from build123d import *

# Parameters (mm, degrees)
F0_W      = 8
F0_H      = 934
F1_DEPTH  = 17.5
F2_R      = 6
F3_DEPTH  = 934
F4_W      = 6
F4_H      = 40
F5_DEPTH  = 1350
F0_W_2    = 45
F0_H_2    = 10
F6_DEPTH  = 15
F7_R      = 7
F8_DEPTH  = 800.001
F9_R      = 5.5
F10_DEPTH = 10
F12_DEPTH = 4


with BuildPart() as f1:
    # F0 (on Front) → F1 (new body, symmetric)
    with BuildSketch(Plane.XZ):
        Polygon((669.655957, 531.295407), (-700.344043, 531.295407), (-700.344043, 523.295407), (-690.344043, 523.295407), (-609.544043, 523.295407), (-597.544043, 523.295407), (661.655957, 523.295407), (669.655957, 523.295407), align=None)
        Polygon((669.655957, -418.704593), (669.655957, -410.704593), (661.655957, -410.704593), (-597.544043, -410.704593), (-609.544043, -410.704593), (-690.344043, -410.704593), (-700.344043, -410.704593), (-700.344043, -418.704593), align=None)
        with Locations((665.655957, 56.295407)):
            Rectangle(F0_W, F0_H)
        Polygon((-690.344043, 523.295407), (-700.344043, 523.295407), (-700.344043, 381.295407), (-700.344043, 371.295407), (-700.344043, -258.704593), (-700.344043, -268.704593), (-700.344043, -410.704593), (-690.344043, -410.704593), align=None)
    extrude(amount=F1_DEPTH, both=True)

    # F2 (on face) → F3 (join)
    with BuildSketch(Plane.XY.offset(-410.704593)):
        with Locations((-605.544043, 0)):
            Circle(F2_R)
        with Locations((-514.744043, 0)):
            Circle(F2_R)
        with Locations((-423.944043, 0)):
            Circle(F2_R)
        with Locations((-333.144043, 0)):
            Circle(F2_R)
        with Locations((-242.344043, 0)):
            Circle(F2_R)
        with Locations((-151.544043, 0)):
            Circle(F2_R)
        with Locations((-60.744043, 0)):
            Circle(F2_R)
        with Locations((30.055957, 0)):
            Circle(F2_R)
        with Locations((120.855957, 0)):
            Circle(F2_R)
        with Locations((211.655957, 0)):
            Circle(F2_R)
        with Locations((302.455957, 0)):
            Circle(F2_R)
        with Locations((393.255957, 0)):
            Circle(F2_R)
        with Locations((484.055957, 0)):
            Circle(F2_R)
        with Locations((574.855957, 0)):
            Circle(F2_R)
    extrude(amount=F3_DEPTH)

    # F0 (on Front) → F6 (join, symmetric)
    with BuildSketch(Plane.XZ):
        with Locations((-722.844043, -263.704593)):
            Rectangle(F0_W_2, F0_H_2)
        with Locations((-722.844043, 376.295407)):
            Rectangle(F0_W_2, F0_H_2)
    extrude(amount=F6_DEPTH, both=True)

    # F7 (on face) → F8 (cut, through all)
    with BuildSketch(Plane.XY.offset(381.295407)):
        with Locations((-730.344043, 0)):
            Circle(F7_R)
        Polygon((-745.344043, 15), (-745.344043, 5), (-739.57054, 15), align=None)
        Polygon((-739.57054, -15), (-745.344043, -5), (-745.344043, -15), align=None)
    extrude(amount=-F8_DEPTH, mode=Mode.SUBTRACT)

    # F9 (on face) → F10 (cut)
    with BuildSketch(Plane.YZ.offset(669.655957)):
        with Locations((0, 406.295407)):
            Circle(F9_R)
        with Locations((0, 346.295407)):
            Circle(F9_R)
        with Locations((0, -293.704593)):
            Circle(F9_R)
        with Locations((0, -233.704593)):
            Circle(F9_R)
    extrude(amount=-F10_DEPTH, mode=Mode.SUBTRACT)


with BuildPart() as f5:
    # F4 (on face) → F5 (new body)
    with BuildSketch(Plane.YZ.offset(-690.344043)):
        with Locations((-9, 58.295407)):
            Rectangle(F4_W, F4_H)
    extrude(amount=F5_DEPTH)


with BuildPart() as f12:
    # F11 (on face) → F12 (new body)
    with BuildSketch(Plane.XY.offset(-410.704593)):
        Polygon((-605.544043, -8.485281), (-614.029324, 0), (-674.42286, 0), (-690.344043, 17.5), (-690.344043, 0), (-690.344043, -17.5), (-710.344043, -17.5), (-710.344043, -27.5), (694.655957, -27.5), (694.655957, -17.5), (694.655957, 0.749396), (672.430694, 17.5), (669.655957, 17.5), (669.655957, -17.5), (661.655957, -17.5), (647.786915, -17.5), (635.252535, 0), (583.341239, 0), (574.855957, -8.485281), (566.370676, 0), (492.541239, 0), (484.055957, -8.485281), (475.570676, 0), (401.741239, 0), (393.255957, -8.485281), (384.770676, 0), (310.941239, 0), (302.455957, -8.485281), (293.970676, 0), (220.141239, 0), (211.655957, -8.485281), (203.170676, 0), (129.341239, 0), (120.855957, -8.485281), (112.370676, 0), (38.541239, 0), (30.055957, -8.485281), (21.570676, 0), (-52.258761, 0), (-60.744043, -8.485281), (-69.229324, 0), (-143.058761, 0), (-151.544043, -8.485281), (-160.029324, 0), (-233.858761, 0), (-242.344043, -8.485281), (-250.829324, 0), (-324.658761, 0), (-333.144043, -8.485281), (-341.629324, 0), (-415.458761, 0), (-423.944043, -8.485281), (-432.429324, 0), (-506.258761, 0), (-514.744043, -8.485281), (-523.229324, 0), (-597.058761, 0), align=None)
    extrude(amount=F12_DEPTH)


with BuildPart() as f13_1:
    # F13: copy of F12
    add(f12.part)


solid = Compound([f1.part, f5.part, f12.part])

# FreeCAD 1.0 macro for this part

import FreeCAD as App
import Part
import Sketcher
from FreeCAD import Vector
Q = App.Units.Quantity


def add_polygon(sketch, points):
    """Adds a closed chain of lines whose ends are joined by coincident constraints."""
    first, n = sketch.GeometryCount, len(points)
    for a, b in zip(points, points[1:] + points[:1]):
        sketch.addGeometry(Part.LineSegment(App.Vector(*a, 0), App.Vector(*b, 0)), False)
    for i in range(n):
        sketch.addConstraint(Sketcher.Constraint("Coincident", first + i, 2, first + (i + 1) % n, 1))

doc = App.newDocument("Part")
body = doc.addObject("PartDesign::Body", "Body")

# Sketch on XZ plane
sketch1 = body.newObject("Sketcher::SketchObject", "Sketch")
sketch1.AttachmentSupport = (doc.getObject("XZ_Plane"), [""])
sketch1.MapMode = "FlatFace"
add_polygon(sketch1, [(670, 531), (-700, 531), (-700, -419), (670, -419)])  # lines 0-3
add_polygon(sketch1, [(-690, 523), (662, 523), (662, -411), (-690, -411)])  # lines 4-7
sketch1.addConstraint([
    Sketcher.Constraint("Horizontal", 0),
    Sketcher.Constraint("Vertical", 1),
    Sketcher.Constraint("Horizontal", 2),
    Sketcher.Constraint("Vertical", 3),
    Sketcher.Constraint("Horizontal", 4),
    Sketcher.Constraint("Vertical", 5),
    Sketcher.Constraint("Horizontal", 6),
    Sketcher.Constraint("Vertical", 7),
    Sketcher.Constraint("DistanceX", 0, 2, 0, 1, 1370.0),
    Sketcher.Constraint("DistanceX", 4, 1, 4, 2, 1352.0),
    Sketcher.Constraint("DistanceY", 1, 2, 1, 1, 950.0),
    Sketcher.Constraint("DistanceY", 5, 2, 5, 1, 934.0),
    Sketcher.Constraint("DistanceX", 4, 2, 3, 2, 8.0),
    Sketcher.Constraint("DistanceY", 4, 2, 3, 2, 8.0),
    Sketcher.Constraint("DistanceX", 0, 2, -1, 1, 700.344043),
    Sketcher.Constraint("DistanceY", -1, 1, 0, 2, 531.295407),
])
pad1 = body.newObject("PartDesign::Pad", "Pad")
pad1.Profile = sketch1
pad1.Length = 35
pad1.Midplane = True

# Sketch on XY plane
sketch2 = body.newObject("Sketcher::SketchObject", "Sketch001")
sketch2.AttachmentSupport = (doc.getObject("XY_Plane"), [""])
sketch2.MapMode = "FlatFace"
sketch2.AttachmentOffset = App.Placement(Vector(0, 0, -410.704593), App.Rotation())
sketch2.addGeometry([
    Part.Circle(Vector(-606, 0, 0), Vector(0, 0, 1), 6),  # 0
    Part.Circle(Vector(-515, 0, 0), Vector(0, 0, 1), 6),  # 1
    Part.Circle(Vector(-424, 0, 0), Vector(0, 0, 1), 6),  # 2
    Part.Circle(Vector(-333, 0, 0), Vector(0, 0, 1), 6),  # 3
    Part.Circle(Vector(-242, 0, 0), Vector(0, 0, 1), 6),  # 4
    Part.Circle(Vector(-152, 0, 0), Vector(0, 0, 1), 6),  # 5
    Part.Circle(Vector(-61, 0, 0), Vector(0, 0, 1), 6),  # 6
    Part.Circle(Vector(30, 0, 0), Vector(0, 0, 1), 6),  # 7
    Part.Circle(Vector(121, 0, 0), Vector(0, 0, 1), 6),  # 8
    Part.Circle(Vector(212, 0, 0), Vector(0, 0, 1), 6),  # 9
    Part.Circle(Vector(302, 0, 0), Vector(0, 0, 1), 6),  # 10
    Part.Circle(Vector(393, 0, 0), Vector(0, 0, 1), 6),  # 11
    Part.Circle(Vector(484, 0, 0), Vector(0, 0, 1), 6),  # 12
    Part.Circle(Vector(575, 0, 0), Vector(0, 0, 1), 6),  # 13
], False)
sketch2.addConstraint([
    Sketcher.Constraint("Equal", 0, 1),
    Sketcher.Constraint("Equal", 1, 2),
    Sketcher.Constraint("Equal", 2, 3),
    Sketcher.Constraint("Equal", 3, 4),
    Sketcher.Constraint("Equal", 4, 5),
    Sketcher.Constraint("Equal", 5, 6),
    Sketcher.Constraint("Equal", 6, 7),
    Sketcher.Constraint("Equal", 7, 8),
    Sketcher.Constraint("Equal", 8, 9),
    Sketcher.Constraint("Equal", 9, 10),
    Sketcher.Constraint("Equal", 10, 11),
    Sketcher.Constraint("Equal", 11, 12),
    Sketcher.Constraint("Equal", 12, 13),
    Sketcher.Constraint("PointOnObject", 0, 3, -1),
    Sketcher.Constraint("PointOnObject", 1, 3, -1),
    Sketcher.Constraint("PointOnObject", 2, 3, -1),
    Sketcher.Constraint("PointOnObject", 3, 3, -1),
    Sketcher.Constraint("PointOnObject", 4, 3, -1),
    Sketcher.Constraint("PointOnObject", 5, 3, -1),
    Sketcher.Constraint("PointOnObject", 6, 3, -1),
    Sketcher.Constraint("PointOnObject", 7, 3, -1),
    Sketcher.Constraint("PointOnObject", 8, 3, -1),
    Sketcher.Constraint("PointOnObject", 9, 3, -1),
    Sketcher.Constraint("PointOnObject", 10, 3, -1),
    Sketcher.Constraint("PointOnObject", 11, 3, -1),
    Sketcher.Constraint("PointOnObject", 12, 3, -1),
    Sketcher.Constraint("PointOnObject", 13, 3, -1),
    Sketcher.Constraint("Diameter", 0, 12.0),
    Sketcher.Constraint("DistanceX", 0, 3, 5, 3, 454.0),
    Sketcher.Constraint("DistanceX", 1, 3, 6, 3, 454.0),
    Sketcher.Constraint("DistanceX", 2, 3, 7, 3, 454.0),
    Sketcher.Constraint("DistanceX", 3, 3, 8, 3, 454.0),
    Sketcher.Constraint("DistanceX", 4, 3, 9, 3, 454.0),
    Sketcher.Constraint("DistanceX", 5, 3, 10, 3, 454.0),
    Sketcher.Constraint("DistanceX", 6, 3, 11, 3, 454.0),
    Sketcher.Constraint("DistanceX", 7, 3, 12, 3, 454.0),
    Sketcher.Constraint("DistanceX", 8, 3, 13, 3, 454.0),
    Sketcher.Constraint("DistanceX", 0, 3, 1, 3, 90.8),
    Sketcher.Constraint("DistanceX", 1, 3, 2, 3, 90.8),
    Sketcher.Constraint("DistanceX", 2, 3, 3, 3, 90.8),
    Sketcher.Constraint("DistanceX", 3, 3, 4, 3, 90.8),
    Sketcher.Constraint("DistanceX", 0, 3, -1, 1, 605.544043),
])
pad2 = body.newObject("PartDesign::Pad", "Pad001")
pad2.Profile = sketch2
pad2.Length = 934

# Sketch on XZ plane
sketch3 = body.newObject("Sketcher::SketchObject", "Sketch002")
sketch3.AttachmentSupport = (doc.getObject("XZ_Plane"), [""])
sketch3.MapMode = "FlatFace"
add_polygon(sketch3, [(-745, -259), (-745, -269), (-700, -269), (-700, -259)])  # lines 0-3
add_polygon(sketch3, [(-745, 381), (-745, 371), (-700, 371), (-700, 381)])  # lines 4-7
sketch3.addConstraint([
    Sketcher.Constraint("Vertical", 0),
    Sketcher.Constraint("Horizontal", 1),
    Sketcher.Constraint("Vertical", 2),
    Sketcher.Constraint("Horizontal", 3),
    Sketcher.Constraint("Vertical", 4),
    Sketcher.Constraint("Horizontal", 5),
    Sketcher.Constraint("Vertical", 6),
    Sketcher.Constraint("Horizontal", 7),
    Sketcher.Constraint("Vertical", 3, 2, 4, 2),
    Sketcher.Constraint("Vertical", 2, 2, 5, 2),
    Sketcher.Constraint("Equal", 2, 4),
    Sketcher.Constraint("DistanceX", 1, 1, 1, 2, 45.0),
    Sketcher.Constraint("DistanceY", 0, 2, 0, 1, 10.0),
    Sketcher.Constraint("DistanceY", 3, 2, 4, 2, 630.0),
    Sketcher.Constraint("DistanceX", 0, 2, -1, 1, 745.344043),
    Sketcher.Constraint("DistanceY", 0, 2, -1, 1, 268.704593),
])
pad3 = body.newObject("PartDesign::Pad", "Pad002")
pad3.Profile = sketch3
pad3.Length = 30
pad3.Midplane = True

# Sketch on XY plane
sketch4 = body.newObject("Sketcher::SketchObject", "Sketch003")
sketch4.AttachmentSupport = (doc.getObject("XY_Plane"), [""])
sketch4.MapMode = "FlatFace"
sketch4.AttachmentOffset = App.Placement(Vector(0, 0, 381.295407), App.Rotation())
sketch4.addGeometry(Part.Circle(Vector(-730, 0, 0), Vector(0, 0, 1), 7), False)  # 0
add_polygon(sketch4, [(-745, 15), (-745, 5), (-740, 15)])  # lines 1-3
add_polygon(sketch4, [(-740, -15), (-745, -5), (-745, -15)])  # lines 4-6
sketch4.addConstraint([
    Sketcher.Constraint("Vertical", 1),
    Sketcher.Constraint("Horizontal", 3),
    Sketcher.Constraint("Vertical", 5),
    Sketcher.Constraint("Horizontal", 6),
    Sketcher.Constraint("Symmetric", 1, 2, 4, 2, -1),
    Sketcher.Constraint("Symmetric", 2, 2, 6, 2, -1),
    Sketcher.Constraint("PointOnObject", 0, 3, -1),
    Sketcher.Constraint("Diameter", 0, 14.0),
    Sketcher.Constraint("DistanceY", 1, 2, 1, 1, 10.0),
    Sketcher.Constraint("Angle", 2, Q("59.999999 deg")),
    Sketcher.Constraint("DistanceY", -1, 1, 1, 2, 5.0),
    Sketcher.Constraint("DistanceX", 1, 2, 0, 3, 15.0),
    Sketcher.Constraint("DistanceX", 2, 2, -1, 1, 739.57054),
])
pocket1 = body.newObject("PartDesign::Pocket", "Pocket")
pocket1.Profile = sketch4
pocket1.Type = "ThroughAll"

# Sketch on YZ plane
sketch5 = body.newObject("Sketcher::SketchObject", "Sketch004")
sketch5.AttachmentSupport = (doc.getObject("YZ_Plane"), [""])
sketch5.MapMode = "FlatFace"
sketch5.AttachmentOffset = App.Placement(Vector(0, 0, 669.655957), App.Rotation())
sketch5.addGeometry([
    Part.Circle(Vector(0, 406, 0), Vector(0, 0, 1), 6),
    Part.Circle(Vector(0, 346, 0), Vector(0, 0, 1), 6),
    Part.Circle(Vector(0, -294, 0), Vector(0, 0, 1), 6),
    Part.Circle(Vector(0, -234, 0), Vector(0, 0, 1), 6),
], False)
sketch5.addConstraint([
    Sketcher.Constraint("Equal", 0, 1),
    Sketcher.Constraint("Equal", 1, 2),
    Sketcher.Constraint("Equal", 2, 3),
    Sketcher.Constraint("PointOnObject", 0, 3, -2),
    Sketcher.Constraint("PointOnObject", 1, 3, -2),
    Sketcher.Constraint("PointOnObject", 2, 3, -2),
    Sketcher.Constraint("PointOnObject", 3, 3, -2),
    Sketcher.Constraint("Diameter", 0, 11.0),
    Sketcher.Constraint("DistanceY", 1, 3, 0, 3, 60.0),
    Sketcher.Constraint("DistanceY", 2, 3, 1, 3, 640.0),
    Sketcher.Constraint("DistanceY", 2, 3, 3, 3, 60.0),
    Sketcher.Constraint("DistanceY", -1, 1, 0, 3, 406.295407),
])
pocket2 = body.newObject("PartDesign::Pocket", "Pocket001")
pocket2.Profile = sketch5
pocket2.Length = 10
body2 = doc.addObject("PartDesign::Body", "Body001")

# Sketch on YZ plane
sketch6 = body2.newObject("Sketcher::SketchObject", "Sketch005")
sketch6.AttachmentSupport = (doc.getObject("YZ_Plane001"), [""])
sketch6.MapMode = "FlatFace"
sketch6.AttachmentOffset = App.Placement(Vector(0, 0, -690.344043), App.Rotation())
add_polygon(sketch6, [(-12, 78), (-12, 38), (-6, 38), (-6, 78)])  # lines 0-3
sketch6.addConstraint([
    Sketcher.Constraint("Vertical", 0),
    Sketcher.Constraint("Horizontal", 1),
    Sketcher.Constraint("Vertical", 2),
    Sketcher.Constraint("Horizontal", 3),
    Sketcher.Constraint("DistanceX", 1, 1, 1, 2, 6.0),
    Sketcher.Constraint("DistanceY", 0, 2, 0, 1, 40.0),
    Sketcher.Constraint("DistanceX", 0, 2, -1, 1, 12.0),
    Sketcher.Constraint("DistanceY", -1, 1, 0, 2, 38.295407),
])
pad4 = body2.newObject("PartDesign::Pad", "Pad003")
pad4.Profile = sketch6
pad4.Length = 1350
body3 = doc.addObject("PartDesign::Body", "Body002")

# Sketch on XY plane
sketch7 = body3.newObject("Sketcher::SketchObject", "Sketch006")
sketch7.AttachmentSupport = (doc.getObject("XY_Plane002"), [""])
sketch7.MapMode = "FlatFace"
sketch7.AttachmentOffset = App.Placement(Vector(0, 0, -410.704593), App.Rotation())
add_polygon(sketch7, [(-605.5, -8.5), (-614, 0), (-674.4, 0), (-690.3, 17.5), (-690.3, -17.5), (-710.3, -17.5), (-710.3, -27.5), (694.7, -27.5), (694.7, 0.7), (672.4, 17.5), (669.7, 17.5), (669.7, -17.5), (647.8, -17.5), (635.3, 0), (583.3, 0), (574.9, -8.5), (566.4, 0), (492.5, 0), (484.1, -8.5), (475.6, 0), (401.7, 0), (393.3, -8.5), (384.8, 0), (310.9, 0), (302.5, -8.5), (294, 0), (220.1, 0), (211.7, -8.5), (203.2, 0), (129.3, 0), (120.9, -8.5), (112.4, 0), (38.5, 0), (30.1, -8.5), (21.6, 0), (-52.3, 0), (-60.7, -8.5), (-69.2, 0), (-143.1, 0), (-151.5, -8.5), (-160, 0), (-233.9, 0), (-242.3, -8.5), (-250.8, 0), (-324.7, 0), (-333.1, -8.5), (-341.6, 0), (-415.5, 0), (-423.9, -8.5), (-432.4, 0), (-506.3, 0), (-514.7, -8.5), (-523.2, 0), (-597.1, 0)])  # lines 0-53
sketch7.addConstraint([
    Sketcher.Constraint("Horizontal", 1),
    Sketcher.Constraint("Vertical", 3),
    Sketcher.Constraint("Horizontal", 4),
    Sketcher.Constraint("Vertical", 5),
    Sketcher.Constraint("Horizontal", 6),
    Sketcher.Constraint("Vertical", 7),
    Sketcher.Constraint("Horizontal", 9),
    Sketcher.Constraint("Vertical", 10),
    Sketcher.Constraint("Horizontal", 11),
    Sketcher.Constraint("Horizontal", 13),
    Sketcher.Constraint("Horizontal", 16),
    Sketcher.Constraint("Horizontal", 19),
    Sketcher.Constraint("Horizontal", 22),
    Sketcher.Constraint("Horizontal", 25),
    Sketcher.Constraint("Horizontal", 28),
    Sketcher.Constraint("Horizontal", 31),
    Sketcher.Constraint("Horizontal", 34),
    Sketcher.Constraint("Horizontal", 37),
    Sketcher.Constraint("Horizontal", 40),
    Sketcher.Constraint("Horizontal", 43),
    Sketcher.Constraint("Horizontal", 46),
    Sketcher.Constraint("Horizontal", 49),
    Sketcher.Constraint("Horizontal", 52),
    Sketcher.Constraint("PointOnObject", 0, 2, -1),
    Sketcher.Constraint("PointOnObject", 12, 2, -1),
    Sketcher.Constraint("PointOnObject", 15, 2, -1),
    Sketcher.Constraint("PointOnObject", 18, 2, -1),
    Sketcher.Constraint("PointOnObject", 21, 2, -1),
    Sketcher.Constraint("PointOnObject", 24, 2, -1),
    Sketcher.Constraint("PointOnObject", 27, 2, -1),
    Sketcher.Constraint("PointOnObject", 30, 2, -1),
    Sketcher.Constraint("PointOnObject", 33, 2, -1),
    Sketcher.Constraint("PointOnObject", 36, 2, -1),
    Sketcher.Constraint("PointOnObject", 39, 2, -1),
    Sketcher.Constraint("PointOnObject", 42, 2, -1),
    Sketcher.Constraint("PointOnObject", 45, 2, -1),
    Sketcher.Constraint("PointOnObject", 48, 2, -1),
    Sketcher.Constraint("PointOnObject", 51, 2, -1),
    Sketcher.Constraint("Perpendicular", 0, 14),
    Sketcher.Constraint("Perpendicular", 14, 15),
    Sketcher.Constraint("Perpendicular", 15, 17),
    Sketcher.Constraint("Perpendicular", 17, 18),
    Sketcher.Constraint("Perpendicular", 18, 20),
    Sketcher.Constraint("Perpendicular", 20, 21),
    Sketcher.Constraint("Perpendicular", 21, 23),
    Sketcher.Constraint("Perpendicular", 23, 24),
    Sketcher.Constraint("Perpendicular", 24, 26),
    Sketcher.Constraint("Perpendicular", 26, 27),
    Sketcher.Constraint("Perpendicular", 27, 29),
    Sketcher.Constraint("Perpendicular", 29, 30),
    Sketcher.Constraint("Perpendicular", 30, 32),
    Sketcher.Constraint("Perpendicular", 32, 33),
    Sketcher.Constraint("Perpendicular", 33, 35),
    Sketcher.Constraint("Perpendicular", 35, 36),
    Sketcher.Constraint("Perpendicular", 36, 38),
    Sketcher.Constraint("Perpendicular", 38, 39),
    Sketcher.Constraint("Perpendicular", 39, 41),
    Sketcher.Constraint("Perpendicular", 41, 42),
    Sketcher.Constraint("Perpendicular", 42, 44),
    Sketcher.Constraint("Perpendicular", 44, 45),
    Sketcher.Constraint("Perpendicular", 45, 47),
    Sketcher.Constraint("Perpendicular", 47, 48),
    Sketcher.Constraint("Perpendicular", 48, 50),
    Sketcher.Constraint("Perpendicular", 50, 51),
    Sketcher.Constraint("Perpendicular", 51, 53),
    Sketcher.Constraint("Horizontal", 2, 2, 8, 2),
    Sketcher.Constraint("Horizontal", 4, 2, 10, 2),
    Sketcher.Constraint("Horizontal", 14, 2, 17, 2),
    Sketcher.Constraint("Horizontal", 17, 2, 20, 2),
    Sketcher.Constraint("Horizontal", 20, 2, 23, 2),
    Sketcher.Constraint("Horizontal", 23, 2, 26, 2),
    Sketcher.Constraint("Horizontal", 26, 2, 29, 2),
    Sketcher.Constraint("Horizontal", 29, 2, 32, 2),
    Sketcher.Constraint("Horizontal", 32, 2, 35, 2),
    Sketcher.Constraint("Horizontal", 35, 2, 38, 2),
    Sketcher.Constraint("Horizontal", 38, 2, 41, 2),
    Sketcher.Constraint("Horizontal", 41, 2, 44, 2),
    Sketcher.Constraint("Horizontal", 44, 2, 47, 2),
    Sketcher.Constraint("Horizontal", 47, 2, 50, 2),
    Sketcher.Constraint("Horizontal", 50, 2, 53, 2),
    Sketcher.Constraint("Equal", 16, 19),
    Sketcher.Constraint("Equal", 19, 22),
    Sketcher.Constraint("Equal", 22, 25),
    Sketcher.Constraint("Equal", 25, 28),
    Sketcher.Constraint("Equal", 28, 31),
    Sketcher.Constraint("Equal", 31, 34),
    Sketcher.Constraint("Equal", 34, 37),
    Sketcher.Constraint("Equal", 37, 40),
    Sketcher.Constraint("Equal", 40, 43),
    Sketcher.Constraint("Equal", 43, 46),
    Sketcher.Constraint("Equal", 46, 49),
    Sketcher.Constraint("Equal", 49, 52),
    Sketcher.Constraint("Equal", 0, 14),
    Sketcher.Constraint("DistanceX", 4, 2, 4, 1, 20.0),
    Sketcher.Constraint("DistanceX", 6, 1, 6, 2, 1405.0),
    Sketcher.Constraint("DistanceY", 3, 2, 3, 1, 35.0),
    Sketcher.Constraint("DistanceY", 5, 2, 5, 1, 10.0),
    Sketcher.Constraint("Distance", 0, 11.999999),
    Sketcher.Constraint("DistanceX", 9, 2, 7, 2, 25.0),
    Sketcher.Constraint("DistanceY", -1, 1, 2, 2, 17.5),
    Sketcher.Constraint("DistanceX", 14, 2, 10, 2, 94.8),
    Sketcher.Constraint("DistanceX", 16, 2, 13, 2, 90.8),
    Sketcher.Constraint("Distance", 2, 23.6587),
    Sketcher.Constraint("DistanceX", 11, 2, 11, 1, 21.869042),
    Sketcher.Constraint("Distance", 8, 27.830649),
    Sketcher.Constraint("DistanceX", 9, 2, 9, 1, 2.774737),
    Sketcher.Constraint("DistanceX", 13, 2, 13, 1, 51.911296),
    Sketcher.Constraint("DistanceX", 1, 2, -1, 1, 674.42286),
])
pad5 = body3.newObject("PartDesign::Pad", "Pad004")
pad5.Profile = sketch7
pad5.Length = 4
body4 = doc.addObject("PartDesign::Body", "Body003")
doc.recompute()

body4.BaseFeature = body3
doc.recompute()
body3.Visibility = False

doc.recompute()
